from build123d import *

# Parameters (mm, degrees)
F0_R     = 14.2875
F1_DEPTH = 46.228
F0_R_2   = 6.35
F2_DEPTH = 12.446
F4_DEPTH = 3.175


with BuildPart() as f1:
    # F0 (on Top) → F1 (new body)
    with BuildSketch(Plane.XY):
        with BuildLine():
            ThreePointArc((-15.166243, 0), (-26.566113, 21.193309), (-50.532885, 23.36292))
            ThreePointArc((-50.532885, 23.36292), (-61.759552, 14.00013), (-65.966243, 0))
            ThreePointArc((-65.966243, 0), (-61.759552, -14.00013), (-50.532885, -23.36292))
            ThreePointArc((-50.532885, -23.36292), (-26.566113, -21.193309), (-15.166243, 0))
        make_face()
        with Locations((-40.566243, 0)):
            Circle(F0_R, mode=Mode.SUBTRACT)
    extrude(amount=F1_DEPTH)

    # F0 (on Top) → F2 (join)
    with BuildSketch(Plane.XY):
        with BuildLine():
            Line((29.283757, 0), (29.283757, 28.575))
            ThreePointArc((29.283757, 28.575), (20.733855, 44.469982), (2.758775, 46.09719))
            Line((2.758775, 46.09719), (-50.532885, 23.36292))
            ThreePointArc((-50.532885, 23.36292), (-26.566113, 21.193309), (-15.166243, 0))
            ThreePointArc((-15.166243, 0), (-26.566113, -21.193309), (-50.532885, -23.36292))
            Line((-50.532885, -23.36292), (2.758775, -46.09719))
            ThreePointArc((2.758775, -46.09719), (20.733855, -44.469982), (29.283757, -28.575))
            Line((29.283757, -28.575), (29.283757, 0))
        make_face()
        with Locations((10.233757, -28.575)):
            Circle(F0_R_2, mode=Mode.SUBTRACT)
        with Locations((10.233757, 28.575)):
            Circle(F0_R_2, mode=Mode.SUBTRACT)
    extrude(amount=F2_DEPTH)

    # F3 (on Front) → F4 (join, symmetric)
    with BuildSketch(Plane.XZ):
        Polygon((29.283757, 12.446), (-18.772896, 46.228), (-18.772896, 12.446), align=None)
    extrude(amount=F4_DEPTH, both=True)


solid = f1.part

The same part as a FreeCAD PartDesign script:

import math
import FreeCAD as App
import Part
import Sketcher

V = App.Vector
Q = App.Units.Quantity


def add_polygon(sketch, points):
    """Adds a closed chain of lines whose ends are joined by coincident constraints."""
    first, n = sketch.GeometryCount, len(points)
    for a, b in zip(points, points[1:] + points[:1]):
        sketch.addGeometry(Part.LineSegment(App.Vector(*a, 0), App.Vector(*b, 0)), False)
    for i in range(n):
        sketch.addConstraint(Sketcher.Constraint("Coincident", first + i, 2, first + (i + 1) % n, 1))

doc = App.newDocument("Part")
body = doc.addObject("PartDesign::Body", "Body")

# Sketch on XY plane
sketch1 = doc.addObject("Sketcher::SketchObject", "Sketch")
body.addObject(sketch1)
sketch1.AttachmentSupport = (doc.XY_Plane, [""])
sketch1.MapMode = "FlatFace"
sketch1.addGeometry([
    Part.ArcOfCircle(Part.Circle(V(-41, 0, 0), V(0, 0, 1), 25), math.radians(0), math.radians(113)),  # 0
    Part.ArcOfCircle(Part.Circle(V(-41, 0, 0), V(0, 0, 1), 25), math.radians(113), math.radians(180)),  # 1
    Part.ArcOfCircle(Part.Circle(V(-41, 0, 0), V(0, 0, 1), 25), math.radians(-180), math.radians(-113)),  # 2
    Part.ArcOfCircle(Part.Circle(V(-41, 0, 0), V(0, 0, 1), 25), math.radians(-113), math.radians(0)),  # 3
    Part.Circle(V(-41, 0, 0), V(0, 0, 1), 14),  # 4
], False)
sketch1.addConstraint([
    Sketcher.Constraint("Tangent", 0, 2, 1, 1),
    Sketcher.Constraint("Tangent", 1, 2, 2, 1),
    Sketcher.Constraint("Tangent", 2, 2, 3, 1),
    Sketcher.Constraint("Tangent", 3, 2, 0, 1),
    Sketcher.Constraint("Coincident", 4, 3, 0, 3),
    Sketcher.Constraint("Equal", 0, 1),
    Sketcher.Constraint("Symmetric", 0, 2, 2, 2, -1),
    Sketcher.Constraint("PointOnObject", 1, 2, -1),
    Sketcher.Constraint("PointOnObject", 3, 2, -1),
    Sketcher.Constraint("Radius", 0, Q("1 in")),
    Sketcher.Constraint("Diameter", 4, Q("1.125 in")),
    Sketcher.Constraint("DistanceY", -1, 1, 0, 2, Q("0.9198 in")),
    Sketcher.Constraint("DistanceX", 0, 3, -1, 1, 40.566243),
])
pad1 = doc.addObject("PartDesign::Pad", "Pad")
body.addObject(pad1)
pad1.Profile = sketch1
pad1.Length = Q("1.82 in")

# Sketch on XY plane
sketch2 = doc.addObject("Sketcher::SketchObject", "Sketch001")
body.addObject(sketch2)
sketch2.AttachmentSupport = (doc.XY_Plane, [""])
sketch2.MapMode = "FlatFace"
sketch2.addGeometry([
    Part.ArcOfCircle(Part.Circle(V(10, 29, 0), V(0, 0, 1), 19), math.radians(0), math.radians(113)),  # 0
    Part.LineSegment(V(3, 46, 0), V(-51, 23, 0)),  # 1
    Part.ArcOfCircle(Part.Circle(V(-41, 0, 0), V(0, 0, 1), 25), math.radians(0), math.radians(113)),  # 2
    Part.ArcOfCircle(Part.Circle(V(-41, 0, 0), V(0, 0, 1), 25), math.radians(-113), math.radians(0)),  # 3
    Part.LineSegment(V(-51, -23, 0), V(3, -46, 0)),  # 4
    Part.ArcOfCircle(Part.Circle(V(10, -29, 0), V(0, 0, 1), 19), math.radians(-113), math.radians(0)),  # 5
    Part.LineSegment(V(29, -29, 0), V(29, 29, 0)),  # 6
    Part.Circle(V(10, -29, 0), V(0, 0, 1), 6),  # 7
    Part.Circle(V(10, 29, 0), V(0, 0, 1), 6),  # 8
], False)
sketch2.addConstraint([
    Sketcher.Constraint("Tangent", 0, 2, 1, 1),
    Sketcher.Constraint("Tangent", 1, 2, 2, 2),
    Sketcher.Constraint("Tangent", 2, 1, 3, 2),
    Sketcher.Constraint("Tangent", 3, 1, 4, 1),
    Sketcher.Constraint("Tangent", 4, 2, 5, 1),
    Sketcher.Constraint("Tangent", 5, 2, 6, 1),
    Sketcher.Constraint("Tangent", 6, 2, 0, 1),
    Sketcher.Constraint("Vertical", 6),
    Sketcher.Constraint("Coincident", 7, 3, 5, 3),
    Sketcher.Constraint("Coincident", 8, 3, 0, 3),
    Sketcher.Constraint("Equal", 2, 3),
    Sketcher.Constraint("Equal", 0, 5),
    Sketcher.Constraint("Equal", 7, 8),
    Sketcher.Constraint("Symmetric", 1, 2, 3, 1, -1),
    Sketcher.Constraint("PointOnObject", 2, 1, -1),
    Sketcher.Constraint("Radius", 2, Q("1 in")),
    Sketcher.Constraint("Diameter", 7, Q("0.5 in")),
    Sketcher.Constraint("Radius", 0, Q("0.75 in")),
    Sketcher.Constraint("DistanceX", 2, 3, 0, 3, Q("2 in")),
    Sketcher.Constraint("DistanceY", 6, 1, 6, 2, Q("2.25 in")),
    Sketcher.Constraint("DistanceX", -1, 1, 0, 3, 10.233757),
])
pad2 = doc.addObject("PartDesign::Pad", "Pad001")
body.addObject(pad2)
pad2.Profile = sketch2
pad2.Length = Q("0.49 in")

# Sketch on XZ plane
sketch3 = doc.addObject("Sketcher::SketchObject", "Sketch002")
body.addObject(sketch3)
sketch3.AttachmentSupport = (doc.XZ_Plane, [""])
sketch3.MapMode = "FlatFace"
add_polygon(sketch3, [(29, 12), (-19, 46), (-19, 12)])  # lines 0-2
sketch3.addConstraint([
    Sketcher.Constraint("Vertical", 1),
    Sketcher.Constraint("Horizontal", 2),
    Sketcher.Constraint("DistanceY", 1, 2, 1, 1, Q("1.33 in")),
    Sketcher.Constraint("DistanceY", -1, 1, 0, 2, Q("1.82 in")),
    Sketcher.Constraint("DistanceX", 2, 1, 2, 2, 48.056653),
    Sketcher.Constraint("DistanceX", 0, 2, -1, 1, 18.772896),
])
pad3 = doc.addObject("PartDesign::Pad", "Pad002")
body.addObject(pad3)
pad3.Profile = sketch3
pad3.Length = Q("0.25 in")
pad3.Midplane = True

doc.recompute()
